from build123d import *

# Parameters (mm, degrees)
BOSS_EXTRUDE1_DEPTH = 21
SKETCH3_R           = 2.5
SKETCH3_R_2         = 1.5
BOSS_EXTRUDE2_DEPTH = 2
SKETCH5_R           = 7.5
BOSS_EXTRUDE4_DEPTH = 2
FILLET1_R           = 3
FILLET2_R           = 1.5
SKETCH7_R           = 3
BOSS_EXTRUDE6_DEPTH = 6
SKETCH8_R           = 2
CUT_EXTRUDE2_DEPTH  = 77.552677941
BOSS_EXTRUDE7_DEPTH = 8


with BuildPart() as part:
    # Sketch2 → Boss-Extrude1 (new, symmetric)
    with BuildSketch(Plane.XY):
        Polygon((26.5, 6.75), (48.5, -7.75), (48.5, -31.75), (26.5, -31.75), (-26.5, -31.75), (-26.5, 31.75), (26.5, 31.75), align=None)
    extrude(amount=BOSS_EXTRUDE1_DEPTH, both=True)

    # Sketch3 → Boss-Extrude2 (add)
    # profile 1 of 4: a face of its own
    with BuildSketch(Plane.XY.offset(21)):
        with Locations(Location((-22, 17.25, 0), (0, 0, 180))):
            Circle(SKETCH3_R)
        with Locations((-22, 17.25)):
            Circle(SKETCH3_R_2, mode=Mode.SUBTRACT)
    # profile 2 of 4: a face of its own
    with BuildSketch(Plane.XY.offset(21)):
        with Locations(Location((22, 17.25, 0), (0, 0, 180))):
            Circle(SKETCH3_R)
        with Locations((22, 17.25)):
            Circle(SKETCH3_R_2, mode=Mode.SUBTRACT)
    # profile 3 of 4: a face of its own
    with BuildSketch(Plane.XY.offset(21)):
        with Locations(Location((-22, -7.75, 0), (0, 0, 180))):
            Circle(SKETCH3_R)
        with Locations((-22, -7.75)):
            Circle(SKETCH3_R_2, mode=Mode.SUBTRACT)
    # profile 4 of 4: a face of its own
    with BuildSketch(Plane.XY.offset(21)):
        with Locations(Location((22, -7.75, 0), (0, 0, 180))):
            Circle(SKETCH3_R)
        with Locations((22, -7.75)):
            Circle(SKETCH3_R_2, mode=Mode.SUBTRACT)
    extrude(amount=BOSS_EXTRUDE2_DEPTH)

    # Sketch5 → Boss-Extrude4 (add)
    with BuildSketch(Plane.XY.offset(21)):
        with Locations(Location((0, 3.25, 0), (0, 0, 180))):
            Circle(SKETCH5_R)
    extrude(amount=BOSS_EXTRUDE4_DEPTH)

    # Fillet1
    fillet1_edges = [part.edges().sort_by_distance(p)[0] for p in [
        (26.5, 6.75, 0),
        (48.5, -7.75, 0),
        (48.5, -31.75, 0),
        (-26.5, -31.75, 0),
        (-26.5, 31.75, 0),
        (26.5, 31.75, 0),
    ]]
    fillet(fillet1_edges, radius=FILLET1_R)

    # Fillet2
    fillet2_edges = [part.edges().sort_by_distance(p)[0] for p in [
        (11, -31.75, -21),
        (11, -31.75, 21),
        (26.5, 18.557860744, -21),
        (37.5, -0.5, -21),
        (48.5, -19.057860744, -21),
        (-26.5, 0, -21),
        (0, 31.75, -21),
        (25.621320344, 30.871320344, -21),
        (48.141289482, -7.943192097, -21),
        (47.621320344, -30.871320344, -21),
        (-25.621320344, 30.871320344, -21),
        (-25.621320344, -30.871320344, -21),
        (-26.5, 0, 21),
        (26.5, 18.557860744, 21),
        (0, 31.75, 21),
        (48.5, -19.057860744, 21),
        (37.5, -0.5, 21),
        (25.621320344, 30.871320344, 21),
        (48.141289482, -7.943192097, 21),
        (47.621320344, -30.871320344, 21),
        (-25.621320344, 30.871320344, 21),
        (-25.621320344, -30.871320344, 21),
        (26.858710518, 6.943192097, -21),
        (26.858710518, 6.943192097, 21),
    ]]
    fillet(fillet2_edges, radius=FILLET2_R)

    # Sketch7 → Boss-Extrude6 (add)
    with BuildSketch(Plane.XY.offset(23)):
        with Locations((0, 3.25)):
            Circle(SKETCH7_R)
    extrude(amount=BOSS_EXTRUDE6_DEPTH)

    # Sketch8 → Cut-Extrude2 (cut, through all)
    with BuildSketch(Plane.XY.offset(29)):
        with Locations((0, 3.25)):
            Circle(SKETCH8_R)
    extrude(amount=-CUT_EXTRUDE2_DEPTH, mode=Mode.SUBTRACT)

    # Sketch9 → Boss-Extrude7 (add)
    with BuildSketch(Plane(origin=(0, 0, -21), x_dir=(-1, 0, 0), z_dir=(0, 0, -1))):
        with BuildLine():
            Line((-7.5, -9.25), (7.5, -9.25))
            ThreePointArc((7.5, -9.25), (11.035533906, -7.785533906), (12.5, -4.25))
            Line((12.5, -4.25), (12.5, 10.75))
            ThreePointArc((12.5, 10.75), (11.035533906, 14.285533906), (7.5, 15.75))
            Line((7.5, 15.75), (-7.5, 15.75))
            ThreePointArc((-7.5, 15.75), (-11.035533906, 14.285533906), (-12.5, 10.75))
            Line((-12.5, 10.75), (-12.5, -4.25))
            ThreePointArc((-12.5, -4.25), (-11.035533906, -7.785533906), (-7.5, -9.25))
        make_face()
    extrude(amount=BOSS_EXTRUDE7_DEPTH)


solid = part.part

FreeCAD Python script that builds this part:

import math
import FreeCAD as App
import Part
import Sketcher

V = App.Vector


def edges_at(feature, points):
    """Names of the edges that pass closest to the given points."""
    edges = feature.Shape.Edges
    near = lambda p: min(range(len(edges)), key=lambda i: edges[i].distToShape(Part.Vertex(*p))[0])
    return sorted({f"Edge{near(p) + 1}" for p in points})


def add_polygon(sketch, points):
    """Adds a closed chain of lines whose ends are joined by coincident constraints."""
    first, n = sketch.GeometryCount, len(points)
    for a, b in zip(points, points[1:] + points[:1]):
        sketch.addGeometry(Part.LineSegment(App.Vector(*a, 0), App.Vector(*b, 0)), False)
    for i in range(n):
        sketch.addConstraint(Sketcher.Constraint("Coincident", first + i, 2, first + (i + 1) % n, 1))

doc = App.newDocument("Part")
params = doc.addObject("Spreadsheet::Sheet", "Params")
for row, (alias, value) in enumerate([
    ("sketch1_width", "53 mm"),
    ("sketch1_width2", "75 mm"),
    ("sketch1_height", "25 mm"),
    ("sketch1_height2", "24 mm"),
    ("sketch1_height3", "63.5 mm"),
    ("pad1_length", "42 mm"),
    ("sketch2_diameter", "5 mm"),
    ("sketch2_diameter2", "3 mm"),
    ("pad2_length", "2 mm"),
    ("sketch3_diameter", "15 mm"),
    ("pad3_length", "2 mm"),
    ("fillet_radius", "3 mm"),
    ("fillet2_radius", "1.5 mm"),
    ("sketch4_diameter", "6 mm"),
    ("pad4_length", "6 mm"),
    ("sketch5_diameter", "4 mm"),
    ("sketch6_radius", "5 mm"),
    ("sketch6_width", "15 mm"),
    ("pad5_length", "8 mm"),
], start=1):
    params.set(f"A{row}", alias)
    params.set(f"B{row}", "=" + value)
    params.setAlias(f"B{row}", alias)

body = doc.addObject("PartDesign::Body", "Body")

# Sketch on XY plane
sketch1 = body.newObject("Sketcher::SketchObject", "Sketch")
sketch1.AttachmentSupport = (doc.getObject("XY_Plane"), [""])
sketch1.MapMode = "FlatFace"
add_polygon(sketch1, [(48, -8), (26, 7), (26, 32), (-26, 32), (-26, -32), (48, -32)])  # lines 0-5
sketch1.addConstraint(Sketcher.Constraint("Vertical", 1))
sketch1.addConstraint(Sketcher.Constraint("Horizontal", 2))
sketch1.addConstraint(Sketcher.Constraint("Vertical", 3))
sketch1.addConstraint(Sketcher.Constraint("Horizontal", 4))
sketch1.addConstraint(Sketcher.Constraint("Vertical", 5))
sketch1.addConstraint(Sketcher.Constraint("Symmetric", 1, 2, 3, 2, -1, 1))
sketch1.addConstraint(Sketcher.Constraint("DistanceX", 2, 2, 2, 1, 53.0))
sketch1.addConstraint(Sketcher.Constraint("DistanceX", 4, 1, 4, 2, 75.0))
sketch1.addConstraint(Sketcher.Constraint("DistanceY", 1, 1, 1, 2, 25.0))
sketch1.addConstraint(Sketcher.Constraint("DistanceY", 5, 1, 5, 2, 24.0))
sketch1.addConstraint(Sketcher.Constraint("DistanceY", 3, 2, 3, 1, 63.5))
sketch1.setExpression("Constraints[12]", "Params.sketch1_width")
sketch1.setExpression("Constraints[13]", "Params.sketch1_width2")
sketch1.setExpression("Constraints[14]", "Params.sketch1_height")
sketch1.setExpression("Constraints[15]", "Params.sketch1_height2")
sketch1.setExpression("Constraints[16]", "Params.sketch1_height3")
pad1 = body.newObject("PartDesign::Pad", "Pad")
pad1.Profile = sketch1
pad1.setExpression("Length", "Params.pad1_length")
pad1.Midplane = True

# Sketch on XY plane
sketch2 = body.newObject("Sketcher::SketchObject", "Sketch001")
sketch2.AttachmentSupport = (doc.getObject("XY_Plane"), [""])
sketch2.MapMode = "FlatFace"
sketch2.AttachmentOffset = App.Placement(V(0, 0, 21), App.Rotation())
sketch2.addGeometry(Part.Circle(V(-22, 17.2, 0), V(0, 0, 1), 2.5), False)
sketch2.addGeometry(Part.Circle(V(-22, 17.2, 0), V(0, 0, 1), 1.5), False)
sketch2.addGeometry(Part.Circle(V(22, 17.2, 0), V(0, 0, 1), 2.5), False)
sketch2.addGeometry(Part.Circle(V(22, 17.2, 0), V(0, 0, 1), 1.5), False)
sketch2.addGeometry(Part.Circle(V(-22, -7.8, 0), V(0, 0, 1), 2.5), False)
sketch2.addGeometry(Part.Circle(V(-22, -7.8, 0), V(0, 0, 1), 1.5), False)
sketch2.addGeometry(Part.Circle(V(22, -7.8, 0), V(0, 0, 1), 2.5), False)
sketch2.addGeometry(Part.Circle(V(22, -7.8, 0), V(0, 0, 1), 1.5), False)
sketch2.addConstraint(Sketcher.Constraint("Coincident", 1, 3, 0, 3))
sketch2.addConstraint(Sketcher.Constraint("Coincident", 3, 3, 2, 3))
sketch2.addConstraint(Sketcher.Constraint("Coincident", 5, 3, 4, 3))
sketch2.addConstraint(Sketcher.Constraint("Coincident", 7, 3, 6, 3))
sketch2.addConstraint(Sketcher.Constraint("Equal", 0, 2))
sketch2.addConstraint(Sketcher.Constraint("Equal", 1, 3))
sketch2.addConstraint(Sketcher.Constraint("Equal", 2, 4))
sketch2.addConstraint(Sketcher.Constraint("Equal", 3, 5))
sketch2.addConstraint(Sketcher.Constraint("Equal", 4, 6))
sketch2.addConstraint(Sketcher.Constraint("Equal", 5, 7))
sketch2.addConstraint(Sketcher.Constraint("Symmetric", 0, 3, 2, 3, -2))
sketch2.addConstraint(Sketcher.Constraint("Symmetric", 4, 3, 6, 3, -2))
sketch2.addConstraint(Sketcher.Constraint("Vertical", 1, 3, 4, 3))
sketch2.addConstraint(Sketcher.Constraint("Diameter", 0, 5.0))
sketch2.addConstraint(Sketcher.Constraint("Diameter", 1, 3.0))
sketch2.addConstraint(Sketcher.Constraint("DistanceX", 0, 3, -1, 1, 22.0))
sketch2.addConstraint(Sketcher.Constraint("DistanceY", 4, 3, 0, 3, 25.0))
sketch2.addConstraint(Sketcher.Constraint("DistanceY", -1, 1, 0, 3, 17.25))
sketch2.setExpression("Constraints[13]", "Params.sketch2_diameter")
sketch2.setExpression("Constraints[14]", "Params.sketch2_diameter2")
pad2 = body.newObject("PartDesign::Pad", "Pad001")
pad2.Profile = sketch2
pad2.setExpression("Length", "Params.pad2_length")

# Sketch on XY plane
sketch3 = body.newObject("Sketcher::SketchObject", "Sketch002")
sketch3.AttachmentSupport = (doc.getObject("XY_Plane"), [""])
sketch3.MapMode = "FlatFace"
sketch3.AttachmentOffset = App.Placement(V(0, 0, 21), App.Rotation())
sketch3.addGeometry(Part.Circle(V(0, 3, 0), V(0, 0, 1), 8), False)
sketch3.addConstraint(Sketcher.Constraint("PointOnObject", 0, 3, -2))
sketch3.addConstraint(Sketcher.Constraint("Diameter", 0, 15.0))
sketch3.addConstraint(Sketcher.Constraint("DistanceY", -1, 1, 0, 3, 3.25))
sketch3.setExpression("Constraints[1]", "Params.sketch3_diameter")
pad3 = body.newObject("PartDesign::Pad", "Pad002")
pad3.Profile = sketch3
pad3.setExpression("Length", "Params.pad3_length")
doc.recompute()

fillet = body.newObject("PartDesign::Fillet", "Fillet")
fillet.Base = (pad3, edges_at(pad3, [
    (26.5, 6.75, 0),
    (48.5, -7.75, 0),
    (48.5, -31.75, 0),
    (-26.5, -31.75, 0),
    (-26.5, 31.75, 0),
    (26.5, 31.75, 0),
]))
fillet.setExpression("Radius", "Params.fillet_radius")
doc.recompute()

fillet2 = body.newObject("PartDesign::Fillet", "Fillet001")
fillet2.Base = (fillet, edges_at(fillet, [
    (11, -31.75, -21),
    (11, -31.75, 21),
    (26.5, 18.558, -21),
    (37.5, -0.5, -21),
    (48.5, -19.058, -21),
    (-26.5, 0, -21),
    (0, 31.75, -21),
    (25.621, 30.871, -21),
    (48.141, -7.943, -21),
    (47.621, -30.871, -21),
    (-25.621, 30.871, -21),
    (-25.621, -30.871, -21),
    (-26.5, 0, 21),
    (26.5, 18.558, 21),
    (0, 31.75, 21),
    (48.5, -19.058, 21),
    (37.5, -0.5, 21),
    (25.621, 30.871, 21),
    (48.141, -7.943, 21),
    (47.621, -30.871, 21),
    (-25.621, 30.871, 21),
    (-25.621, -30.871, 21),
    (26.859, 6.943, -21),
    (26.859, 6.943, 21),
]))
fillet2.setExpression("Radius", "Params.fillet2_radius")

# Sketch on XY plane
sketch4 = body.newObject("Sketcher::SketchObject", "Sketch003")
sketch4.AttachmentSupport = (doc.getObject("XY_Plane"), [""])
sketch4.MapMode = "FlatFace"
sketch4.AttachmentOffset = App.Placement(V(0, 0, 23), App.Rotation())
sketch4.addGeometry(Part.Circle(V(0, 3.2, 0), V(0, 0, 1), 3), False)
sketch4.addConstraint(Sketcher.Constraint("PointOnObject", 0, 3, -2))
sketch4.addConstraint(Sketcher.Constraint("Diameter", 0, 6.0))
sketch4.addConstraint(Sketcher.Constraint("DistanceY", -1, 1, 0, 3, 3.25))
sketch4.setExpression("Constraints[1]", "Params.sketch4_diameter")
pad4 = body.newObject("PartDesign::Pad", "Pad003")
pad4.Profile = sketch4
pad4.setExpression("Length", "Params.pad4_length")

# Sketch on XY plane
sketch5 = body.newObject("Sketcher::SketchObject", "Sketch004")
sketch5.AttachmentSupport = (doc.getObject("XY_Plane"), [""])
sketch5.MapMode = "FlatFace"
sketch5.AttachmentOffset = App.Placement(V(0, 0, 29), App.Rotation())
sketch5.addGeometry(Part.Circle(V(0, 3.2, 0), V(0, 0, 1), 2), False)
sketch5.addConstraint(Sketcher.Constraint("PointOnObject", 0, 3, -2))
sketch5.addConstraint(Sketcher.Constraint("Diameter", 0, 4.0))
sketch5.addConstraint(Sketcher.Constraint("DistanceY", -1, 1, 0, 3, 3.25))
sketch5.setExpression("Constraints[1]", "Params.sketch5_diameter")
pocket1 = body.newObject("PartDesign::Pocket", "Pocket")
pocket1.Profile = sketch5
pocket1.Type = "ThroughAll"

# Sketch on XY plane
sketch6 = body.newObject("Sketcher::SketchObject", "Sketch005")
sketch6.AttachmentSupport = (doc.getObject("XY_Plane"), [""])
sketch6.MapMode = "FlatFace"
sketch6.AttachmentOffset = App.Placement(V(0, 0, -21), App.Rotation())
sketch6.addGeometry(Part.LineSegment(V(8, -9, 0), V(-8, -9, 0)), False)
sketch6.addGeometry(Part.ArcOfCircle(Part.Circle(V(-8, -4, 0), V(0, 0, 1), 5), math.radians(180), math.radians(270)), False)
sketch6.addGeometry(Part.LineSegment(V(-12, -4, 0), V(-12, 11, 0)), False)
sketch6.addGeometry(Part.ArcOfCircle(Part.Circle(V(-8, 11, 0), V(0, 0, 1), 5), math.radians(90), math.radians(180)), False)
sketch6.addGeometry(Part.LineSegment(V(-8, 16, 0), V(8, 16, 0)), False)
sketch6.addGeometry(Part.ArcOfCircle(Part.Circle(V(8, 11, 0), V(0, 0, 1), 5), math.radians(0), math.radians(90)), False)
sketch6.addGeometry(Part.LineSegment(V(12, 11, 0), V(12, -4, 0)), False)
sketch6.addGeometry(Part.ArcOfCircle(Part.Circle(V(8, -4, 0), V(0, 0, 1), 5), math.radians(-90), math.radians(0)), False)
sketch6.addConstraint(Sketcher.Constraint("Tangent", 0, 2, 1, 2))
sketch6.addConstraint(Sketcher.Constraint("Tangent", 1, 1, 2, 1))
sketch6.addConstraint(Sketcher.Constraint("Tangent", 2, 2, 3, 2))
sketch6.addConstraint(Sketcher.Constraint("Tangent", 3, 1, 4, 1))
sketch6.addConstraint(Sketcher.Constraint("Tangent", 4, 2, 5, 2))
sketch6.addConstraint(Sketcher.Constraint("Tangent", 5, 1, 6, 1))
sketch6.addConstraint(Sketcher.Constraint("Tangent", 6, 2, 7, 2))
sketch6.addConstraint(Sketcher.Constraint("Tangent", 7, 1, 0, 1))
sketch6.addConstraint(Sketcher.Constraint("Horizontal", 0))
sketch6.addConstraint(Sketcher.Constraint("Vertical", 2))
sketch6.addConstraint(Sketcher.Constraint("Horizontal", 4))
sketch6.addConstraint(Sketcher.Constraint("Vertical", 6))
sketch6.addConstraint(Sketcher.Constraint("Equal", 1, 3))
sketch6.addConstraint(Sketcher.Constraint("Equal", 3, 5))
sketch6.addConstraint(Sketcher.Constraint("Equal", 5, 7))
sketch6.addConstraint(Sketcher.Constraint("Equal", 4, 2))
sketch6.addConstraint(Sketcher.Constraint("Radius", 1, 5.0))
sketch6.addConstraint(Sketcher.Constraint("DistanceX", 0, 2, 0, 1, 15.0))
sketch6.addConstraint(Sketcher.Constraint("DistanceX", 1, 3, -1, 1, 7.5))
sketch6.addConstraint(Sketcher.Constraint("DistanceY", 1, 3, -1, 1, 4.25))
sketch6.setExpression("Constraints[16]", "Params.sketch6_radius")
sketch6.setExpression("Constraints[17]", "Params.sketch6_width")
pad5 = body.newObject("PartDesign::Pad", "Pad004")
pad5.Profile = sketch6
pad5.setExpression("Length", "Params.pad5_length")
pad5.Reversed = True

doc.recompute()
